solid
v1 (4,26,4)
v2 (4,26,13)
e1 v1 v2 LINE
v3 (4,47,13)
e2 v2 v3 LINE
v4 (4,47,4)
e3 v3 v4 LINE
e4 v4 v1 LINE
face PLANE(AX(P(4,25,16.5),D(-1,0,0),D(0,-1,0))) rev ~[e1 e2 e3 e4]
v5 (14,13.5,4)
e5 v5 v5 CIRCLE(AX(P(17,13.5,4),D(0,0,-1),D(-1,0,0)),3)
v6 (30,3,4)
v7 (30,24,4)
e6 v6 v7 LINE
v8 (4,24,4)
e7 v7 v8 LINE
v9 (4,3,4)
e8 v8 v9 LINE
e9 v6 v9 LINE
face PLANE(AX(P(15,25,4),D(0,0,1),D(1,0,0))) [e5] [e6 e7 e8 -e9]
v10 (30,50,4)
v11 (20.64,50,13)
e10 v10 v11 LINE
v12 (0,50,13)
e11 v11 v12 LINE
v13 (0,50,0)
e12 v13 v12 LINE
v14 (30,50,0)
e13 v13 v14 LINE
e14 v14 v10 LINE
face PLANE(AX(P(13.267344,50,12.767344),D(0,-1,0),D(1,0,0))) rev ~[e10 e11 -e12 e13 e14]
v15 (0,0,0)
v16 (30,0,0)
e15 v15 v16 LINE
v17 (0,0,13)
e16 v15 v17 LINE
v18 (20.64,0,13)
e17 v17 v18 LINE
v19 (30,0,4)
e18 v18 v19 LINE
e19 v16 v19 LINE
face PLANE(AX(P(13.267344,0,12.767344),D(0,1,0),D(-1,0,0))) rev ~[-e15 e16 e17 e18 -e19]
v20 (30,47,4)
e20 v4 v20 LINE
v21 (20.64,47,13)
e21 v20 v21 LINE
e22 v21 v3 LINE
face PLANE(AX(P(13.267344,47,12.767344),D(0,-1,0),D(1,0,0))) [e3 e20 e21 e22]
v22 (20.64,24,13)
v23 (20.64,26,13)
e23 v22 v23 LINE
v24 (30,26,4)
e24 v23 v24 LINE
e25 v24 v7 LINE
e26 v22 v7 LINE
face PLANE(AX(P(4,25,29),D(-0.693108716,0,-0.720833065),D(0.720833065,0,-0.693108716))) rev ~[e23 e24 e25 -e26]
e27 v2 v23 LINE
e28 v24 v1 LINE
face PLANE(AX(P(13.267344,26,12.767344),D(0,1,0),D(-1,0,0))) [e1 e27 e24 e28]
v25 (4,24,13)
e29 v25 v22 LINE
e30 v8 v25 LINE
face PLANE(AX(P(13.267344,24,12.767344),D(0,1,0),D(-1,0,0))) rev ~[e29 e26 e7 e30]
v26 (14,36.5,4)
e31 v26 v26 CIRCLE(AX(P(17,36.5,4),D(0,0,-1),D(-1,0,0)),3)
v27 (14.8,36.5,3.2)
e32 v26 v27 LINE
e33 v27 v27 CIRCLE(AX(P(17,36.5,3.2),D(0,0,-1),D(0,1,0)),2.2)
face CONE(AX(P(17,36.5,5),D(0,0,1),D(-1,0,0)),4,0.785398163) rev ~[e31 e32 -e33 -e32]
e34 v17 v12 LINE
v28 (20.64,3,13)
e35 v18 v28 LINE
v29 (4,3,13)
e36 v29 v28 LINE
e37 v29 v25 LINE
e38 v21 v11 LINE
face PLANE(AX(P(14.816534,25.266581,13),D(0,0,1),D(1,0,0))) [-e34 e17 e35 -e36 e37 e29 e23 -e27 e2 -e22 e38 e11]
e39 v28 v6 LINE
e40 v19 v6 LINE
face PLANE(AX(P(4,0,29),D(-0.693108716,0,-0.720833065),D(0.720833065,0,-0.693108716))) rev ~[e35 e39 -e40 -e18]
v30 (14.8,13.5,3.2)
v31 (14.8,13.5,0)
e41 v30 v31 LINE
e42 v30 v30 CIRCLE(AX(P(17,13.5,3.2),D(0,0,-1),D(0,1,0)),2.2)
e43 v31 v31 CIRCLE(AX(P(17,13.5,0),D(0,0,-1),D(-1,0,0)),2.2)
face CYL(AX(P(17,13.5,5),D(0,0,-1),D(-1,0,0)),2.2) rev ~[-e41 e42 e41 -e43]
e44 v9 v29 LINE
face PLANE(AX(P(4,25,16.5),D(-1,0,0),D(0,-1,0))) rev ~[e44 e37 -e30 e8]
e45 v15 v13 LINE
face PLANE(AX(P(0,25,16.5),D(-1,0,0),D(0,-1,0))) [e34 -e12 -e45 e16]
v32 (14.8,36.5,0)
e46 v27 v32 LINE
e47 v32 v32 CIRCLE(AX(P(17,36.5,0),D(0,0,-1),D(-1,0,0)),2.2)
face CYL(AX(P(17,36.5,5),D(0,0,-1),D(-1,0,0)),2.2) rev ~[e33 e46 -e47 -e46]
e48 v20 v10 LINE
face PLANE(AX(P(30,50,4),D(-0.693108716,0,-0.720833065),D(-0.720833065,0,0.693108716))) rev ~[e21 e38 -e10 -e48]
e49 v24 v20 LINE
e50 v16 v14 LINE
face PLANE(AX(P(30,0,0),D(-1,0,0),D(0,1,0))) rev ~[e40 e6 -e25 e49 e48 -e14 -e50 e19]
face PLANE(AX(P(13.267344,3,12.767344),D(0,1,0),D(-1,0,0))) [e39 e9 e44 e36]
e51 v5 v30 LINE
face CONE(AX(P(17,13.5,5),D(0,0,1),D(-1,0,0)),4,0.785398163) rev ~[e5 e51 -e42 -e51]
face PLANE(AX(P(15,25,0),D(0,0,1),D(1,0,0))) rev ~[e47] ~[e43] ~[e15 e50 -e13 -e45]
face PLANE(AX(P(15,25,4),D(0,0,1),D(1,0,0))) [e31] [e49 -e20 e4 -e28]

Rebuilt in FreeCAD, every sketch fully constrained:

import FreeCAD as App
import Part
import Sketcher

V = App.Vector


def add_polygon(sketch, points):
    """Adds a closed chain of lines whose ends are joined by coincident constraints."""
    first, n = sketch.GeometryCount, len(points)
    for a, b in zip(points, points[1:] + points[:1]):
        sketch.addGeometry(Part.LineSegment(App.Vector(*a, 0), App.Vector(*b, 0)), False)
    for i in range(n):
        sketch.addConstraint(Sketcher.Constraint("Coincident", first + i, 2, first + (i + 1) % n, 1))

doc = App.newDocument("Part")
body = doc.addObject("PartDesign::Body", "Body")

# Sketch on XY plane
sketch1 = body.newObject("Sketcher::SketchObject", "Sketch")
sketch1.AttachmentSupport = (doc.getObject("XY_Plane"), [""])
sketch1.MapMode = "FlatFace"
add_polygon(sketch1, [(0, 50), (0, 0), (30, 0), (30, 50)])  # lines 0-3
sketch1.addConstraint(Sketcher.Constraint("Vertical", 0))
sketch1.addConstraint(Sketcher.Constraint("Horizontal", 1))
sketch1.addConstraint(Sketcher.Constraint("Vertical", 2))
sketch1.addConstraint(Sketcher.Constraint("Horizontal", 3))
sketch1.addConstraint(Sketcher.Constraint("Coincident", 0, 2, -1, 1))
sketch1.addConstraint(Sketcher.Constraint("DistanceX", 1, 1, 1, 2, 30.0))
sketch1.addConstraint(Sketcher.Constraint("DistanceY", 0, 2, 0, 1, 50.0))
pad1 = body.newObject("PartDesign::Pad", "Pad")
pad1.Profile = sketch1
pad1.Length = 4

# Sketch on YZ plane
sketch2 = body.newObject("Sketcher::SketchObject", "Sketch001")
sketch2.AttachmentSupport = (doc.getObject("YZ_Plane"), [""])
sketch2.MapMode = "FlatFace"
add_polygon(sketch2, [(50, 29), (50, 4), (0, 4), (0, 29)])  # lines 0-3
sketch2.addConstraint(Sketcher.Constraint("Vertical", 0))
sketch2.addConstraint(Sketcher.Constraint("Horizontal", 1))
sketch2.addConstraint(Sketcher.Constraint("Vertical", 2))
sketch2.addConstraint(Sketcher.Constraint("Horizontal", 3))
sketch2.addConstraint(Sketcher.Constraint("PointOnObject", 1, 2, -2))
sketch2.addConstraint(Sketcher.Constraint("DistanceX", 1, 2, 1, 1, 50.0))
sketch2.addConstraint(Sketcher.Constraint("DistanceY", 0, 2, 0, 1, 25.0))
sketch2.addConstraint(Sketcher.Constraint("DistanceY", -1, 1, 0, 2, 4.0))
pad2 = body.newObject("PartDesign::Pad", "Pad001")
pad2.Profile = sketch2
pad2.Length = 4

# Sketch on XZ plane
sketch3 = body.newObject("Sketcher::SketchObject", "Sketch002")
sketch3.AttachmentSupport = (doc.getObject("XZ_Plane"), [""])
sketch3.MapMode = "FlatFace"
add_polygon(sketch3, [(4, 29), (4, 4), (30, 4)])  # lines 0-2
sketch3.addConstraint(Sketcher.Constraint("Vertical", 0))
sketch3.addConstraint(Sketcher.Constraint("Horizontal", 1))
sketch3.addConstraint(Sketcher.Constraint("DistanceX", 1, 1, 1, 2, 26.0))
sketch3.addConstraint(Sketcher.Constraint("DistanceY", 0, 2, 0, 1, 25.0))
sketch3.addConstraint(Sketcher.Constraint("DistanceX", -1, 1, 0, 2, 4.0))
sketch3.addConstraint(Sketcher.Constraint("DistanceY", -1, 1, 0, 2, 4.0))
pad3 = body.newObject("PartDesign::Pad", "Pad002")
pad3.Profile = sketch3
pad3.Length = 3
pad3.Reversed = True

# Sketch on XZ plane
sketch4 = body.newObject("Sketcher::SketchObject", "Sketch003")
sketch4.AttachmentSupport = (doc.getObject("XZ_Plane"), [""])
sketch4.MapMode = "FlatFace"
sketch4.AttachmentOffset = App.Placement(V(0, 0, -25), App.Rotation())
add_polygon(sketch4, [(4, 29), (4, 4), (30, 4)])  # lines 0-2
sketch4.addConstraint(Sketcher.Constraint("Vertical", 0))
sketch4.addConstraint(Sketcher.Constraint("Horizontal", 1))
sketch4.addConstraint(Sketcher.Constraint("DistanceX", 1, 1, 1, 2, 26.0))
sketch4.addConstraint(Sketcher.Constraint("DistanceY", 0, 2, 0, 1, 25.0))
sketch4.addConstraint(Sketcher.Constraint("DistanceX", -1, 1, 0, 2, 4.0))
sketch4.addConstraint(Sketcher.Constraint("DistanceY", -1, 1, 0, 2, 4.0))
pad4 = body.newObject("PartDesign::Pad", "Pad003")
pad4.Profile = sketch4
pad4.Length = 2
pad4.Midplane = True

# Sketch on XZ plane
sketch5 = body.newObject("Sketcher::SketchObject", "Sketch004")
sketch5.AttachmentSupport = (doc.getObject("XZ_Plane"), [""])
sketch5.MapMode = "FlatFace"
sketch5.AttachmentOffset = App.Placement(V(0, 0, -50), App.Rotation())
add_polygon(sketch5, [(4, 29), (4, 4), (30, 4)])  # lines 0-2
sketch5.addConstraint(Sketcher.Constraint("Vertical", 0))
sketch5.addConstraint(Sketcher.Constraint("Horizontal", 1))
sketch5.addConstraint(Sketcher.Constraint("DistanceX", 1, 1, 1, 2, 26.0))
sketch5.addConstraint(Sketcher.Constraint("DistanceY", 0, 2, 0, 1, 25.0))
sketch5.addConstraint(Sketcher.Constraint("DistanceX", -1, 1, 0, 2, 4.0))
sketch5.addConstraint(Sketcher.Constraint("DistanceY", -1, 1, 0, 2, 4.0))
pad5 = body.newObject("PartDesign::Pad", "Pad004")
pad5.Profile = sketch5
pad5.Length = 3

# Sketch on XY plane
sketch6 = body.newObject("Sketcher::SketchObject", "Sketch005")
sketch6.AttachmentSupport = (doc.getObject("XY_Plane"), [""])
sketch6.MapMode = "FlatFace"
sketch6.AttachmentOffset = App.Placement(V(0, 0, 5), App.Rotation())
sketch6.addGeometry(Part.Circle(V(17, 36.5, 0), V(0, 0, 1), 2.2), False)
sketch6.addGeometry(Part.Circle(V(17, 13.5, 0), V(0, 0, 1), 2.2), False)
sketch6.addConstraint(Sketcher.Constraint("Equal", 0, 1))
sketch6.addConstraint(Sketcher.Constraint("Vertical", 0, 3, 1, 3))
sketch6.addConstraint(Sketcher.Constraint("Diameter", 0, 4.4))
sketch6.addConstraint(Sketcher.Constraint("DistanceX", -1, 1, 0, 3, 17.0))
sketch6.addConstraint(Sketcher.Constraint("DistanceY", 1, 3, 0, 3, 23.0))
sketch6.addConstraint(Sketcher.Constraint("DistanceY", -1, 1, 0, 3, 36.5))
doc.recompute()
hole = body.newObject("PartDesign::Hole", "Hole")
hole.Profile = sketch6
hole.ThreadType = "None"
hole.Diameter = 4.4
hole.DepthType = "Dimension"
hole.Depth = 25
hole.DrillPoint = "Flat"
hole.HoleCutType = "Countersink"
hole.HoleCutDiameter = 8
hole.HoleCutCountersinkAngle = 90

# Sketch on XY plane
sketch7 = body.newObject("Sketcher::SketchObject", "Sketch006")
sketch7.AttachmentSupport = (doc.getObject("XY_Plane"), [""])
sketch7.MapMode = "FlatFace"
sketch7.AttachmentOffset = App.Placement(V(0, 0, 13), App.Rotation())
add_polygon(sketch7, [(-6, 54), (-6, -3), (35, -3), (35, 54)])  # lines 0-3
sketch7.addConstraint(Sketcher.Constraint("Vertical", 0))
sketch7.addConstraint(Sketcher.Constraint("Horizontal", 1))
sketch7.addConstraint(Sketcher.Constraint("Vertical", 2))
sketch7.addConstraint(Sketcher.Constraint("Horizontal", 3))
sketch7.addConstraint(Sketcher.Constraint("DistanceX", 1, 1, 1, 2, 40.900608))
sketch7.addConstraint(Sketcher.Constraint("DistanceY", 0, 2, 0, 1, 56.513194))
sketch7.addConstraint(Sketcher.Constraint("DistanceX", 0, 2, -1, 1, 5.63377))
sketch7.addConstraint(Sketcher.Constraint("DistanceY", 0, 2, -1, 1, 2.990016))
pocket1 = body.newObject("PartDesign::Pocket", "Pocket")
pocket1.Profile = sketch7
pocket1.Length = 25
pocket1.Reversed = True

doc.recompute()
